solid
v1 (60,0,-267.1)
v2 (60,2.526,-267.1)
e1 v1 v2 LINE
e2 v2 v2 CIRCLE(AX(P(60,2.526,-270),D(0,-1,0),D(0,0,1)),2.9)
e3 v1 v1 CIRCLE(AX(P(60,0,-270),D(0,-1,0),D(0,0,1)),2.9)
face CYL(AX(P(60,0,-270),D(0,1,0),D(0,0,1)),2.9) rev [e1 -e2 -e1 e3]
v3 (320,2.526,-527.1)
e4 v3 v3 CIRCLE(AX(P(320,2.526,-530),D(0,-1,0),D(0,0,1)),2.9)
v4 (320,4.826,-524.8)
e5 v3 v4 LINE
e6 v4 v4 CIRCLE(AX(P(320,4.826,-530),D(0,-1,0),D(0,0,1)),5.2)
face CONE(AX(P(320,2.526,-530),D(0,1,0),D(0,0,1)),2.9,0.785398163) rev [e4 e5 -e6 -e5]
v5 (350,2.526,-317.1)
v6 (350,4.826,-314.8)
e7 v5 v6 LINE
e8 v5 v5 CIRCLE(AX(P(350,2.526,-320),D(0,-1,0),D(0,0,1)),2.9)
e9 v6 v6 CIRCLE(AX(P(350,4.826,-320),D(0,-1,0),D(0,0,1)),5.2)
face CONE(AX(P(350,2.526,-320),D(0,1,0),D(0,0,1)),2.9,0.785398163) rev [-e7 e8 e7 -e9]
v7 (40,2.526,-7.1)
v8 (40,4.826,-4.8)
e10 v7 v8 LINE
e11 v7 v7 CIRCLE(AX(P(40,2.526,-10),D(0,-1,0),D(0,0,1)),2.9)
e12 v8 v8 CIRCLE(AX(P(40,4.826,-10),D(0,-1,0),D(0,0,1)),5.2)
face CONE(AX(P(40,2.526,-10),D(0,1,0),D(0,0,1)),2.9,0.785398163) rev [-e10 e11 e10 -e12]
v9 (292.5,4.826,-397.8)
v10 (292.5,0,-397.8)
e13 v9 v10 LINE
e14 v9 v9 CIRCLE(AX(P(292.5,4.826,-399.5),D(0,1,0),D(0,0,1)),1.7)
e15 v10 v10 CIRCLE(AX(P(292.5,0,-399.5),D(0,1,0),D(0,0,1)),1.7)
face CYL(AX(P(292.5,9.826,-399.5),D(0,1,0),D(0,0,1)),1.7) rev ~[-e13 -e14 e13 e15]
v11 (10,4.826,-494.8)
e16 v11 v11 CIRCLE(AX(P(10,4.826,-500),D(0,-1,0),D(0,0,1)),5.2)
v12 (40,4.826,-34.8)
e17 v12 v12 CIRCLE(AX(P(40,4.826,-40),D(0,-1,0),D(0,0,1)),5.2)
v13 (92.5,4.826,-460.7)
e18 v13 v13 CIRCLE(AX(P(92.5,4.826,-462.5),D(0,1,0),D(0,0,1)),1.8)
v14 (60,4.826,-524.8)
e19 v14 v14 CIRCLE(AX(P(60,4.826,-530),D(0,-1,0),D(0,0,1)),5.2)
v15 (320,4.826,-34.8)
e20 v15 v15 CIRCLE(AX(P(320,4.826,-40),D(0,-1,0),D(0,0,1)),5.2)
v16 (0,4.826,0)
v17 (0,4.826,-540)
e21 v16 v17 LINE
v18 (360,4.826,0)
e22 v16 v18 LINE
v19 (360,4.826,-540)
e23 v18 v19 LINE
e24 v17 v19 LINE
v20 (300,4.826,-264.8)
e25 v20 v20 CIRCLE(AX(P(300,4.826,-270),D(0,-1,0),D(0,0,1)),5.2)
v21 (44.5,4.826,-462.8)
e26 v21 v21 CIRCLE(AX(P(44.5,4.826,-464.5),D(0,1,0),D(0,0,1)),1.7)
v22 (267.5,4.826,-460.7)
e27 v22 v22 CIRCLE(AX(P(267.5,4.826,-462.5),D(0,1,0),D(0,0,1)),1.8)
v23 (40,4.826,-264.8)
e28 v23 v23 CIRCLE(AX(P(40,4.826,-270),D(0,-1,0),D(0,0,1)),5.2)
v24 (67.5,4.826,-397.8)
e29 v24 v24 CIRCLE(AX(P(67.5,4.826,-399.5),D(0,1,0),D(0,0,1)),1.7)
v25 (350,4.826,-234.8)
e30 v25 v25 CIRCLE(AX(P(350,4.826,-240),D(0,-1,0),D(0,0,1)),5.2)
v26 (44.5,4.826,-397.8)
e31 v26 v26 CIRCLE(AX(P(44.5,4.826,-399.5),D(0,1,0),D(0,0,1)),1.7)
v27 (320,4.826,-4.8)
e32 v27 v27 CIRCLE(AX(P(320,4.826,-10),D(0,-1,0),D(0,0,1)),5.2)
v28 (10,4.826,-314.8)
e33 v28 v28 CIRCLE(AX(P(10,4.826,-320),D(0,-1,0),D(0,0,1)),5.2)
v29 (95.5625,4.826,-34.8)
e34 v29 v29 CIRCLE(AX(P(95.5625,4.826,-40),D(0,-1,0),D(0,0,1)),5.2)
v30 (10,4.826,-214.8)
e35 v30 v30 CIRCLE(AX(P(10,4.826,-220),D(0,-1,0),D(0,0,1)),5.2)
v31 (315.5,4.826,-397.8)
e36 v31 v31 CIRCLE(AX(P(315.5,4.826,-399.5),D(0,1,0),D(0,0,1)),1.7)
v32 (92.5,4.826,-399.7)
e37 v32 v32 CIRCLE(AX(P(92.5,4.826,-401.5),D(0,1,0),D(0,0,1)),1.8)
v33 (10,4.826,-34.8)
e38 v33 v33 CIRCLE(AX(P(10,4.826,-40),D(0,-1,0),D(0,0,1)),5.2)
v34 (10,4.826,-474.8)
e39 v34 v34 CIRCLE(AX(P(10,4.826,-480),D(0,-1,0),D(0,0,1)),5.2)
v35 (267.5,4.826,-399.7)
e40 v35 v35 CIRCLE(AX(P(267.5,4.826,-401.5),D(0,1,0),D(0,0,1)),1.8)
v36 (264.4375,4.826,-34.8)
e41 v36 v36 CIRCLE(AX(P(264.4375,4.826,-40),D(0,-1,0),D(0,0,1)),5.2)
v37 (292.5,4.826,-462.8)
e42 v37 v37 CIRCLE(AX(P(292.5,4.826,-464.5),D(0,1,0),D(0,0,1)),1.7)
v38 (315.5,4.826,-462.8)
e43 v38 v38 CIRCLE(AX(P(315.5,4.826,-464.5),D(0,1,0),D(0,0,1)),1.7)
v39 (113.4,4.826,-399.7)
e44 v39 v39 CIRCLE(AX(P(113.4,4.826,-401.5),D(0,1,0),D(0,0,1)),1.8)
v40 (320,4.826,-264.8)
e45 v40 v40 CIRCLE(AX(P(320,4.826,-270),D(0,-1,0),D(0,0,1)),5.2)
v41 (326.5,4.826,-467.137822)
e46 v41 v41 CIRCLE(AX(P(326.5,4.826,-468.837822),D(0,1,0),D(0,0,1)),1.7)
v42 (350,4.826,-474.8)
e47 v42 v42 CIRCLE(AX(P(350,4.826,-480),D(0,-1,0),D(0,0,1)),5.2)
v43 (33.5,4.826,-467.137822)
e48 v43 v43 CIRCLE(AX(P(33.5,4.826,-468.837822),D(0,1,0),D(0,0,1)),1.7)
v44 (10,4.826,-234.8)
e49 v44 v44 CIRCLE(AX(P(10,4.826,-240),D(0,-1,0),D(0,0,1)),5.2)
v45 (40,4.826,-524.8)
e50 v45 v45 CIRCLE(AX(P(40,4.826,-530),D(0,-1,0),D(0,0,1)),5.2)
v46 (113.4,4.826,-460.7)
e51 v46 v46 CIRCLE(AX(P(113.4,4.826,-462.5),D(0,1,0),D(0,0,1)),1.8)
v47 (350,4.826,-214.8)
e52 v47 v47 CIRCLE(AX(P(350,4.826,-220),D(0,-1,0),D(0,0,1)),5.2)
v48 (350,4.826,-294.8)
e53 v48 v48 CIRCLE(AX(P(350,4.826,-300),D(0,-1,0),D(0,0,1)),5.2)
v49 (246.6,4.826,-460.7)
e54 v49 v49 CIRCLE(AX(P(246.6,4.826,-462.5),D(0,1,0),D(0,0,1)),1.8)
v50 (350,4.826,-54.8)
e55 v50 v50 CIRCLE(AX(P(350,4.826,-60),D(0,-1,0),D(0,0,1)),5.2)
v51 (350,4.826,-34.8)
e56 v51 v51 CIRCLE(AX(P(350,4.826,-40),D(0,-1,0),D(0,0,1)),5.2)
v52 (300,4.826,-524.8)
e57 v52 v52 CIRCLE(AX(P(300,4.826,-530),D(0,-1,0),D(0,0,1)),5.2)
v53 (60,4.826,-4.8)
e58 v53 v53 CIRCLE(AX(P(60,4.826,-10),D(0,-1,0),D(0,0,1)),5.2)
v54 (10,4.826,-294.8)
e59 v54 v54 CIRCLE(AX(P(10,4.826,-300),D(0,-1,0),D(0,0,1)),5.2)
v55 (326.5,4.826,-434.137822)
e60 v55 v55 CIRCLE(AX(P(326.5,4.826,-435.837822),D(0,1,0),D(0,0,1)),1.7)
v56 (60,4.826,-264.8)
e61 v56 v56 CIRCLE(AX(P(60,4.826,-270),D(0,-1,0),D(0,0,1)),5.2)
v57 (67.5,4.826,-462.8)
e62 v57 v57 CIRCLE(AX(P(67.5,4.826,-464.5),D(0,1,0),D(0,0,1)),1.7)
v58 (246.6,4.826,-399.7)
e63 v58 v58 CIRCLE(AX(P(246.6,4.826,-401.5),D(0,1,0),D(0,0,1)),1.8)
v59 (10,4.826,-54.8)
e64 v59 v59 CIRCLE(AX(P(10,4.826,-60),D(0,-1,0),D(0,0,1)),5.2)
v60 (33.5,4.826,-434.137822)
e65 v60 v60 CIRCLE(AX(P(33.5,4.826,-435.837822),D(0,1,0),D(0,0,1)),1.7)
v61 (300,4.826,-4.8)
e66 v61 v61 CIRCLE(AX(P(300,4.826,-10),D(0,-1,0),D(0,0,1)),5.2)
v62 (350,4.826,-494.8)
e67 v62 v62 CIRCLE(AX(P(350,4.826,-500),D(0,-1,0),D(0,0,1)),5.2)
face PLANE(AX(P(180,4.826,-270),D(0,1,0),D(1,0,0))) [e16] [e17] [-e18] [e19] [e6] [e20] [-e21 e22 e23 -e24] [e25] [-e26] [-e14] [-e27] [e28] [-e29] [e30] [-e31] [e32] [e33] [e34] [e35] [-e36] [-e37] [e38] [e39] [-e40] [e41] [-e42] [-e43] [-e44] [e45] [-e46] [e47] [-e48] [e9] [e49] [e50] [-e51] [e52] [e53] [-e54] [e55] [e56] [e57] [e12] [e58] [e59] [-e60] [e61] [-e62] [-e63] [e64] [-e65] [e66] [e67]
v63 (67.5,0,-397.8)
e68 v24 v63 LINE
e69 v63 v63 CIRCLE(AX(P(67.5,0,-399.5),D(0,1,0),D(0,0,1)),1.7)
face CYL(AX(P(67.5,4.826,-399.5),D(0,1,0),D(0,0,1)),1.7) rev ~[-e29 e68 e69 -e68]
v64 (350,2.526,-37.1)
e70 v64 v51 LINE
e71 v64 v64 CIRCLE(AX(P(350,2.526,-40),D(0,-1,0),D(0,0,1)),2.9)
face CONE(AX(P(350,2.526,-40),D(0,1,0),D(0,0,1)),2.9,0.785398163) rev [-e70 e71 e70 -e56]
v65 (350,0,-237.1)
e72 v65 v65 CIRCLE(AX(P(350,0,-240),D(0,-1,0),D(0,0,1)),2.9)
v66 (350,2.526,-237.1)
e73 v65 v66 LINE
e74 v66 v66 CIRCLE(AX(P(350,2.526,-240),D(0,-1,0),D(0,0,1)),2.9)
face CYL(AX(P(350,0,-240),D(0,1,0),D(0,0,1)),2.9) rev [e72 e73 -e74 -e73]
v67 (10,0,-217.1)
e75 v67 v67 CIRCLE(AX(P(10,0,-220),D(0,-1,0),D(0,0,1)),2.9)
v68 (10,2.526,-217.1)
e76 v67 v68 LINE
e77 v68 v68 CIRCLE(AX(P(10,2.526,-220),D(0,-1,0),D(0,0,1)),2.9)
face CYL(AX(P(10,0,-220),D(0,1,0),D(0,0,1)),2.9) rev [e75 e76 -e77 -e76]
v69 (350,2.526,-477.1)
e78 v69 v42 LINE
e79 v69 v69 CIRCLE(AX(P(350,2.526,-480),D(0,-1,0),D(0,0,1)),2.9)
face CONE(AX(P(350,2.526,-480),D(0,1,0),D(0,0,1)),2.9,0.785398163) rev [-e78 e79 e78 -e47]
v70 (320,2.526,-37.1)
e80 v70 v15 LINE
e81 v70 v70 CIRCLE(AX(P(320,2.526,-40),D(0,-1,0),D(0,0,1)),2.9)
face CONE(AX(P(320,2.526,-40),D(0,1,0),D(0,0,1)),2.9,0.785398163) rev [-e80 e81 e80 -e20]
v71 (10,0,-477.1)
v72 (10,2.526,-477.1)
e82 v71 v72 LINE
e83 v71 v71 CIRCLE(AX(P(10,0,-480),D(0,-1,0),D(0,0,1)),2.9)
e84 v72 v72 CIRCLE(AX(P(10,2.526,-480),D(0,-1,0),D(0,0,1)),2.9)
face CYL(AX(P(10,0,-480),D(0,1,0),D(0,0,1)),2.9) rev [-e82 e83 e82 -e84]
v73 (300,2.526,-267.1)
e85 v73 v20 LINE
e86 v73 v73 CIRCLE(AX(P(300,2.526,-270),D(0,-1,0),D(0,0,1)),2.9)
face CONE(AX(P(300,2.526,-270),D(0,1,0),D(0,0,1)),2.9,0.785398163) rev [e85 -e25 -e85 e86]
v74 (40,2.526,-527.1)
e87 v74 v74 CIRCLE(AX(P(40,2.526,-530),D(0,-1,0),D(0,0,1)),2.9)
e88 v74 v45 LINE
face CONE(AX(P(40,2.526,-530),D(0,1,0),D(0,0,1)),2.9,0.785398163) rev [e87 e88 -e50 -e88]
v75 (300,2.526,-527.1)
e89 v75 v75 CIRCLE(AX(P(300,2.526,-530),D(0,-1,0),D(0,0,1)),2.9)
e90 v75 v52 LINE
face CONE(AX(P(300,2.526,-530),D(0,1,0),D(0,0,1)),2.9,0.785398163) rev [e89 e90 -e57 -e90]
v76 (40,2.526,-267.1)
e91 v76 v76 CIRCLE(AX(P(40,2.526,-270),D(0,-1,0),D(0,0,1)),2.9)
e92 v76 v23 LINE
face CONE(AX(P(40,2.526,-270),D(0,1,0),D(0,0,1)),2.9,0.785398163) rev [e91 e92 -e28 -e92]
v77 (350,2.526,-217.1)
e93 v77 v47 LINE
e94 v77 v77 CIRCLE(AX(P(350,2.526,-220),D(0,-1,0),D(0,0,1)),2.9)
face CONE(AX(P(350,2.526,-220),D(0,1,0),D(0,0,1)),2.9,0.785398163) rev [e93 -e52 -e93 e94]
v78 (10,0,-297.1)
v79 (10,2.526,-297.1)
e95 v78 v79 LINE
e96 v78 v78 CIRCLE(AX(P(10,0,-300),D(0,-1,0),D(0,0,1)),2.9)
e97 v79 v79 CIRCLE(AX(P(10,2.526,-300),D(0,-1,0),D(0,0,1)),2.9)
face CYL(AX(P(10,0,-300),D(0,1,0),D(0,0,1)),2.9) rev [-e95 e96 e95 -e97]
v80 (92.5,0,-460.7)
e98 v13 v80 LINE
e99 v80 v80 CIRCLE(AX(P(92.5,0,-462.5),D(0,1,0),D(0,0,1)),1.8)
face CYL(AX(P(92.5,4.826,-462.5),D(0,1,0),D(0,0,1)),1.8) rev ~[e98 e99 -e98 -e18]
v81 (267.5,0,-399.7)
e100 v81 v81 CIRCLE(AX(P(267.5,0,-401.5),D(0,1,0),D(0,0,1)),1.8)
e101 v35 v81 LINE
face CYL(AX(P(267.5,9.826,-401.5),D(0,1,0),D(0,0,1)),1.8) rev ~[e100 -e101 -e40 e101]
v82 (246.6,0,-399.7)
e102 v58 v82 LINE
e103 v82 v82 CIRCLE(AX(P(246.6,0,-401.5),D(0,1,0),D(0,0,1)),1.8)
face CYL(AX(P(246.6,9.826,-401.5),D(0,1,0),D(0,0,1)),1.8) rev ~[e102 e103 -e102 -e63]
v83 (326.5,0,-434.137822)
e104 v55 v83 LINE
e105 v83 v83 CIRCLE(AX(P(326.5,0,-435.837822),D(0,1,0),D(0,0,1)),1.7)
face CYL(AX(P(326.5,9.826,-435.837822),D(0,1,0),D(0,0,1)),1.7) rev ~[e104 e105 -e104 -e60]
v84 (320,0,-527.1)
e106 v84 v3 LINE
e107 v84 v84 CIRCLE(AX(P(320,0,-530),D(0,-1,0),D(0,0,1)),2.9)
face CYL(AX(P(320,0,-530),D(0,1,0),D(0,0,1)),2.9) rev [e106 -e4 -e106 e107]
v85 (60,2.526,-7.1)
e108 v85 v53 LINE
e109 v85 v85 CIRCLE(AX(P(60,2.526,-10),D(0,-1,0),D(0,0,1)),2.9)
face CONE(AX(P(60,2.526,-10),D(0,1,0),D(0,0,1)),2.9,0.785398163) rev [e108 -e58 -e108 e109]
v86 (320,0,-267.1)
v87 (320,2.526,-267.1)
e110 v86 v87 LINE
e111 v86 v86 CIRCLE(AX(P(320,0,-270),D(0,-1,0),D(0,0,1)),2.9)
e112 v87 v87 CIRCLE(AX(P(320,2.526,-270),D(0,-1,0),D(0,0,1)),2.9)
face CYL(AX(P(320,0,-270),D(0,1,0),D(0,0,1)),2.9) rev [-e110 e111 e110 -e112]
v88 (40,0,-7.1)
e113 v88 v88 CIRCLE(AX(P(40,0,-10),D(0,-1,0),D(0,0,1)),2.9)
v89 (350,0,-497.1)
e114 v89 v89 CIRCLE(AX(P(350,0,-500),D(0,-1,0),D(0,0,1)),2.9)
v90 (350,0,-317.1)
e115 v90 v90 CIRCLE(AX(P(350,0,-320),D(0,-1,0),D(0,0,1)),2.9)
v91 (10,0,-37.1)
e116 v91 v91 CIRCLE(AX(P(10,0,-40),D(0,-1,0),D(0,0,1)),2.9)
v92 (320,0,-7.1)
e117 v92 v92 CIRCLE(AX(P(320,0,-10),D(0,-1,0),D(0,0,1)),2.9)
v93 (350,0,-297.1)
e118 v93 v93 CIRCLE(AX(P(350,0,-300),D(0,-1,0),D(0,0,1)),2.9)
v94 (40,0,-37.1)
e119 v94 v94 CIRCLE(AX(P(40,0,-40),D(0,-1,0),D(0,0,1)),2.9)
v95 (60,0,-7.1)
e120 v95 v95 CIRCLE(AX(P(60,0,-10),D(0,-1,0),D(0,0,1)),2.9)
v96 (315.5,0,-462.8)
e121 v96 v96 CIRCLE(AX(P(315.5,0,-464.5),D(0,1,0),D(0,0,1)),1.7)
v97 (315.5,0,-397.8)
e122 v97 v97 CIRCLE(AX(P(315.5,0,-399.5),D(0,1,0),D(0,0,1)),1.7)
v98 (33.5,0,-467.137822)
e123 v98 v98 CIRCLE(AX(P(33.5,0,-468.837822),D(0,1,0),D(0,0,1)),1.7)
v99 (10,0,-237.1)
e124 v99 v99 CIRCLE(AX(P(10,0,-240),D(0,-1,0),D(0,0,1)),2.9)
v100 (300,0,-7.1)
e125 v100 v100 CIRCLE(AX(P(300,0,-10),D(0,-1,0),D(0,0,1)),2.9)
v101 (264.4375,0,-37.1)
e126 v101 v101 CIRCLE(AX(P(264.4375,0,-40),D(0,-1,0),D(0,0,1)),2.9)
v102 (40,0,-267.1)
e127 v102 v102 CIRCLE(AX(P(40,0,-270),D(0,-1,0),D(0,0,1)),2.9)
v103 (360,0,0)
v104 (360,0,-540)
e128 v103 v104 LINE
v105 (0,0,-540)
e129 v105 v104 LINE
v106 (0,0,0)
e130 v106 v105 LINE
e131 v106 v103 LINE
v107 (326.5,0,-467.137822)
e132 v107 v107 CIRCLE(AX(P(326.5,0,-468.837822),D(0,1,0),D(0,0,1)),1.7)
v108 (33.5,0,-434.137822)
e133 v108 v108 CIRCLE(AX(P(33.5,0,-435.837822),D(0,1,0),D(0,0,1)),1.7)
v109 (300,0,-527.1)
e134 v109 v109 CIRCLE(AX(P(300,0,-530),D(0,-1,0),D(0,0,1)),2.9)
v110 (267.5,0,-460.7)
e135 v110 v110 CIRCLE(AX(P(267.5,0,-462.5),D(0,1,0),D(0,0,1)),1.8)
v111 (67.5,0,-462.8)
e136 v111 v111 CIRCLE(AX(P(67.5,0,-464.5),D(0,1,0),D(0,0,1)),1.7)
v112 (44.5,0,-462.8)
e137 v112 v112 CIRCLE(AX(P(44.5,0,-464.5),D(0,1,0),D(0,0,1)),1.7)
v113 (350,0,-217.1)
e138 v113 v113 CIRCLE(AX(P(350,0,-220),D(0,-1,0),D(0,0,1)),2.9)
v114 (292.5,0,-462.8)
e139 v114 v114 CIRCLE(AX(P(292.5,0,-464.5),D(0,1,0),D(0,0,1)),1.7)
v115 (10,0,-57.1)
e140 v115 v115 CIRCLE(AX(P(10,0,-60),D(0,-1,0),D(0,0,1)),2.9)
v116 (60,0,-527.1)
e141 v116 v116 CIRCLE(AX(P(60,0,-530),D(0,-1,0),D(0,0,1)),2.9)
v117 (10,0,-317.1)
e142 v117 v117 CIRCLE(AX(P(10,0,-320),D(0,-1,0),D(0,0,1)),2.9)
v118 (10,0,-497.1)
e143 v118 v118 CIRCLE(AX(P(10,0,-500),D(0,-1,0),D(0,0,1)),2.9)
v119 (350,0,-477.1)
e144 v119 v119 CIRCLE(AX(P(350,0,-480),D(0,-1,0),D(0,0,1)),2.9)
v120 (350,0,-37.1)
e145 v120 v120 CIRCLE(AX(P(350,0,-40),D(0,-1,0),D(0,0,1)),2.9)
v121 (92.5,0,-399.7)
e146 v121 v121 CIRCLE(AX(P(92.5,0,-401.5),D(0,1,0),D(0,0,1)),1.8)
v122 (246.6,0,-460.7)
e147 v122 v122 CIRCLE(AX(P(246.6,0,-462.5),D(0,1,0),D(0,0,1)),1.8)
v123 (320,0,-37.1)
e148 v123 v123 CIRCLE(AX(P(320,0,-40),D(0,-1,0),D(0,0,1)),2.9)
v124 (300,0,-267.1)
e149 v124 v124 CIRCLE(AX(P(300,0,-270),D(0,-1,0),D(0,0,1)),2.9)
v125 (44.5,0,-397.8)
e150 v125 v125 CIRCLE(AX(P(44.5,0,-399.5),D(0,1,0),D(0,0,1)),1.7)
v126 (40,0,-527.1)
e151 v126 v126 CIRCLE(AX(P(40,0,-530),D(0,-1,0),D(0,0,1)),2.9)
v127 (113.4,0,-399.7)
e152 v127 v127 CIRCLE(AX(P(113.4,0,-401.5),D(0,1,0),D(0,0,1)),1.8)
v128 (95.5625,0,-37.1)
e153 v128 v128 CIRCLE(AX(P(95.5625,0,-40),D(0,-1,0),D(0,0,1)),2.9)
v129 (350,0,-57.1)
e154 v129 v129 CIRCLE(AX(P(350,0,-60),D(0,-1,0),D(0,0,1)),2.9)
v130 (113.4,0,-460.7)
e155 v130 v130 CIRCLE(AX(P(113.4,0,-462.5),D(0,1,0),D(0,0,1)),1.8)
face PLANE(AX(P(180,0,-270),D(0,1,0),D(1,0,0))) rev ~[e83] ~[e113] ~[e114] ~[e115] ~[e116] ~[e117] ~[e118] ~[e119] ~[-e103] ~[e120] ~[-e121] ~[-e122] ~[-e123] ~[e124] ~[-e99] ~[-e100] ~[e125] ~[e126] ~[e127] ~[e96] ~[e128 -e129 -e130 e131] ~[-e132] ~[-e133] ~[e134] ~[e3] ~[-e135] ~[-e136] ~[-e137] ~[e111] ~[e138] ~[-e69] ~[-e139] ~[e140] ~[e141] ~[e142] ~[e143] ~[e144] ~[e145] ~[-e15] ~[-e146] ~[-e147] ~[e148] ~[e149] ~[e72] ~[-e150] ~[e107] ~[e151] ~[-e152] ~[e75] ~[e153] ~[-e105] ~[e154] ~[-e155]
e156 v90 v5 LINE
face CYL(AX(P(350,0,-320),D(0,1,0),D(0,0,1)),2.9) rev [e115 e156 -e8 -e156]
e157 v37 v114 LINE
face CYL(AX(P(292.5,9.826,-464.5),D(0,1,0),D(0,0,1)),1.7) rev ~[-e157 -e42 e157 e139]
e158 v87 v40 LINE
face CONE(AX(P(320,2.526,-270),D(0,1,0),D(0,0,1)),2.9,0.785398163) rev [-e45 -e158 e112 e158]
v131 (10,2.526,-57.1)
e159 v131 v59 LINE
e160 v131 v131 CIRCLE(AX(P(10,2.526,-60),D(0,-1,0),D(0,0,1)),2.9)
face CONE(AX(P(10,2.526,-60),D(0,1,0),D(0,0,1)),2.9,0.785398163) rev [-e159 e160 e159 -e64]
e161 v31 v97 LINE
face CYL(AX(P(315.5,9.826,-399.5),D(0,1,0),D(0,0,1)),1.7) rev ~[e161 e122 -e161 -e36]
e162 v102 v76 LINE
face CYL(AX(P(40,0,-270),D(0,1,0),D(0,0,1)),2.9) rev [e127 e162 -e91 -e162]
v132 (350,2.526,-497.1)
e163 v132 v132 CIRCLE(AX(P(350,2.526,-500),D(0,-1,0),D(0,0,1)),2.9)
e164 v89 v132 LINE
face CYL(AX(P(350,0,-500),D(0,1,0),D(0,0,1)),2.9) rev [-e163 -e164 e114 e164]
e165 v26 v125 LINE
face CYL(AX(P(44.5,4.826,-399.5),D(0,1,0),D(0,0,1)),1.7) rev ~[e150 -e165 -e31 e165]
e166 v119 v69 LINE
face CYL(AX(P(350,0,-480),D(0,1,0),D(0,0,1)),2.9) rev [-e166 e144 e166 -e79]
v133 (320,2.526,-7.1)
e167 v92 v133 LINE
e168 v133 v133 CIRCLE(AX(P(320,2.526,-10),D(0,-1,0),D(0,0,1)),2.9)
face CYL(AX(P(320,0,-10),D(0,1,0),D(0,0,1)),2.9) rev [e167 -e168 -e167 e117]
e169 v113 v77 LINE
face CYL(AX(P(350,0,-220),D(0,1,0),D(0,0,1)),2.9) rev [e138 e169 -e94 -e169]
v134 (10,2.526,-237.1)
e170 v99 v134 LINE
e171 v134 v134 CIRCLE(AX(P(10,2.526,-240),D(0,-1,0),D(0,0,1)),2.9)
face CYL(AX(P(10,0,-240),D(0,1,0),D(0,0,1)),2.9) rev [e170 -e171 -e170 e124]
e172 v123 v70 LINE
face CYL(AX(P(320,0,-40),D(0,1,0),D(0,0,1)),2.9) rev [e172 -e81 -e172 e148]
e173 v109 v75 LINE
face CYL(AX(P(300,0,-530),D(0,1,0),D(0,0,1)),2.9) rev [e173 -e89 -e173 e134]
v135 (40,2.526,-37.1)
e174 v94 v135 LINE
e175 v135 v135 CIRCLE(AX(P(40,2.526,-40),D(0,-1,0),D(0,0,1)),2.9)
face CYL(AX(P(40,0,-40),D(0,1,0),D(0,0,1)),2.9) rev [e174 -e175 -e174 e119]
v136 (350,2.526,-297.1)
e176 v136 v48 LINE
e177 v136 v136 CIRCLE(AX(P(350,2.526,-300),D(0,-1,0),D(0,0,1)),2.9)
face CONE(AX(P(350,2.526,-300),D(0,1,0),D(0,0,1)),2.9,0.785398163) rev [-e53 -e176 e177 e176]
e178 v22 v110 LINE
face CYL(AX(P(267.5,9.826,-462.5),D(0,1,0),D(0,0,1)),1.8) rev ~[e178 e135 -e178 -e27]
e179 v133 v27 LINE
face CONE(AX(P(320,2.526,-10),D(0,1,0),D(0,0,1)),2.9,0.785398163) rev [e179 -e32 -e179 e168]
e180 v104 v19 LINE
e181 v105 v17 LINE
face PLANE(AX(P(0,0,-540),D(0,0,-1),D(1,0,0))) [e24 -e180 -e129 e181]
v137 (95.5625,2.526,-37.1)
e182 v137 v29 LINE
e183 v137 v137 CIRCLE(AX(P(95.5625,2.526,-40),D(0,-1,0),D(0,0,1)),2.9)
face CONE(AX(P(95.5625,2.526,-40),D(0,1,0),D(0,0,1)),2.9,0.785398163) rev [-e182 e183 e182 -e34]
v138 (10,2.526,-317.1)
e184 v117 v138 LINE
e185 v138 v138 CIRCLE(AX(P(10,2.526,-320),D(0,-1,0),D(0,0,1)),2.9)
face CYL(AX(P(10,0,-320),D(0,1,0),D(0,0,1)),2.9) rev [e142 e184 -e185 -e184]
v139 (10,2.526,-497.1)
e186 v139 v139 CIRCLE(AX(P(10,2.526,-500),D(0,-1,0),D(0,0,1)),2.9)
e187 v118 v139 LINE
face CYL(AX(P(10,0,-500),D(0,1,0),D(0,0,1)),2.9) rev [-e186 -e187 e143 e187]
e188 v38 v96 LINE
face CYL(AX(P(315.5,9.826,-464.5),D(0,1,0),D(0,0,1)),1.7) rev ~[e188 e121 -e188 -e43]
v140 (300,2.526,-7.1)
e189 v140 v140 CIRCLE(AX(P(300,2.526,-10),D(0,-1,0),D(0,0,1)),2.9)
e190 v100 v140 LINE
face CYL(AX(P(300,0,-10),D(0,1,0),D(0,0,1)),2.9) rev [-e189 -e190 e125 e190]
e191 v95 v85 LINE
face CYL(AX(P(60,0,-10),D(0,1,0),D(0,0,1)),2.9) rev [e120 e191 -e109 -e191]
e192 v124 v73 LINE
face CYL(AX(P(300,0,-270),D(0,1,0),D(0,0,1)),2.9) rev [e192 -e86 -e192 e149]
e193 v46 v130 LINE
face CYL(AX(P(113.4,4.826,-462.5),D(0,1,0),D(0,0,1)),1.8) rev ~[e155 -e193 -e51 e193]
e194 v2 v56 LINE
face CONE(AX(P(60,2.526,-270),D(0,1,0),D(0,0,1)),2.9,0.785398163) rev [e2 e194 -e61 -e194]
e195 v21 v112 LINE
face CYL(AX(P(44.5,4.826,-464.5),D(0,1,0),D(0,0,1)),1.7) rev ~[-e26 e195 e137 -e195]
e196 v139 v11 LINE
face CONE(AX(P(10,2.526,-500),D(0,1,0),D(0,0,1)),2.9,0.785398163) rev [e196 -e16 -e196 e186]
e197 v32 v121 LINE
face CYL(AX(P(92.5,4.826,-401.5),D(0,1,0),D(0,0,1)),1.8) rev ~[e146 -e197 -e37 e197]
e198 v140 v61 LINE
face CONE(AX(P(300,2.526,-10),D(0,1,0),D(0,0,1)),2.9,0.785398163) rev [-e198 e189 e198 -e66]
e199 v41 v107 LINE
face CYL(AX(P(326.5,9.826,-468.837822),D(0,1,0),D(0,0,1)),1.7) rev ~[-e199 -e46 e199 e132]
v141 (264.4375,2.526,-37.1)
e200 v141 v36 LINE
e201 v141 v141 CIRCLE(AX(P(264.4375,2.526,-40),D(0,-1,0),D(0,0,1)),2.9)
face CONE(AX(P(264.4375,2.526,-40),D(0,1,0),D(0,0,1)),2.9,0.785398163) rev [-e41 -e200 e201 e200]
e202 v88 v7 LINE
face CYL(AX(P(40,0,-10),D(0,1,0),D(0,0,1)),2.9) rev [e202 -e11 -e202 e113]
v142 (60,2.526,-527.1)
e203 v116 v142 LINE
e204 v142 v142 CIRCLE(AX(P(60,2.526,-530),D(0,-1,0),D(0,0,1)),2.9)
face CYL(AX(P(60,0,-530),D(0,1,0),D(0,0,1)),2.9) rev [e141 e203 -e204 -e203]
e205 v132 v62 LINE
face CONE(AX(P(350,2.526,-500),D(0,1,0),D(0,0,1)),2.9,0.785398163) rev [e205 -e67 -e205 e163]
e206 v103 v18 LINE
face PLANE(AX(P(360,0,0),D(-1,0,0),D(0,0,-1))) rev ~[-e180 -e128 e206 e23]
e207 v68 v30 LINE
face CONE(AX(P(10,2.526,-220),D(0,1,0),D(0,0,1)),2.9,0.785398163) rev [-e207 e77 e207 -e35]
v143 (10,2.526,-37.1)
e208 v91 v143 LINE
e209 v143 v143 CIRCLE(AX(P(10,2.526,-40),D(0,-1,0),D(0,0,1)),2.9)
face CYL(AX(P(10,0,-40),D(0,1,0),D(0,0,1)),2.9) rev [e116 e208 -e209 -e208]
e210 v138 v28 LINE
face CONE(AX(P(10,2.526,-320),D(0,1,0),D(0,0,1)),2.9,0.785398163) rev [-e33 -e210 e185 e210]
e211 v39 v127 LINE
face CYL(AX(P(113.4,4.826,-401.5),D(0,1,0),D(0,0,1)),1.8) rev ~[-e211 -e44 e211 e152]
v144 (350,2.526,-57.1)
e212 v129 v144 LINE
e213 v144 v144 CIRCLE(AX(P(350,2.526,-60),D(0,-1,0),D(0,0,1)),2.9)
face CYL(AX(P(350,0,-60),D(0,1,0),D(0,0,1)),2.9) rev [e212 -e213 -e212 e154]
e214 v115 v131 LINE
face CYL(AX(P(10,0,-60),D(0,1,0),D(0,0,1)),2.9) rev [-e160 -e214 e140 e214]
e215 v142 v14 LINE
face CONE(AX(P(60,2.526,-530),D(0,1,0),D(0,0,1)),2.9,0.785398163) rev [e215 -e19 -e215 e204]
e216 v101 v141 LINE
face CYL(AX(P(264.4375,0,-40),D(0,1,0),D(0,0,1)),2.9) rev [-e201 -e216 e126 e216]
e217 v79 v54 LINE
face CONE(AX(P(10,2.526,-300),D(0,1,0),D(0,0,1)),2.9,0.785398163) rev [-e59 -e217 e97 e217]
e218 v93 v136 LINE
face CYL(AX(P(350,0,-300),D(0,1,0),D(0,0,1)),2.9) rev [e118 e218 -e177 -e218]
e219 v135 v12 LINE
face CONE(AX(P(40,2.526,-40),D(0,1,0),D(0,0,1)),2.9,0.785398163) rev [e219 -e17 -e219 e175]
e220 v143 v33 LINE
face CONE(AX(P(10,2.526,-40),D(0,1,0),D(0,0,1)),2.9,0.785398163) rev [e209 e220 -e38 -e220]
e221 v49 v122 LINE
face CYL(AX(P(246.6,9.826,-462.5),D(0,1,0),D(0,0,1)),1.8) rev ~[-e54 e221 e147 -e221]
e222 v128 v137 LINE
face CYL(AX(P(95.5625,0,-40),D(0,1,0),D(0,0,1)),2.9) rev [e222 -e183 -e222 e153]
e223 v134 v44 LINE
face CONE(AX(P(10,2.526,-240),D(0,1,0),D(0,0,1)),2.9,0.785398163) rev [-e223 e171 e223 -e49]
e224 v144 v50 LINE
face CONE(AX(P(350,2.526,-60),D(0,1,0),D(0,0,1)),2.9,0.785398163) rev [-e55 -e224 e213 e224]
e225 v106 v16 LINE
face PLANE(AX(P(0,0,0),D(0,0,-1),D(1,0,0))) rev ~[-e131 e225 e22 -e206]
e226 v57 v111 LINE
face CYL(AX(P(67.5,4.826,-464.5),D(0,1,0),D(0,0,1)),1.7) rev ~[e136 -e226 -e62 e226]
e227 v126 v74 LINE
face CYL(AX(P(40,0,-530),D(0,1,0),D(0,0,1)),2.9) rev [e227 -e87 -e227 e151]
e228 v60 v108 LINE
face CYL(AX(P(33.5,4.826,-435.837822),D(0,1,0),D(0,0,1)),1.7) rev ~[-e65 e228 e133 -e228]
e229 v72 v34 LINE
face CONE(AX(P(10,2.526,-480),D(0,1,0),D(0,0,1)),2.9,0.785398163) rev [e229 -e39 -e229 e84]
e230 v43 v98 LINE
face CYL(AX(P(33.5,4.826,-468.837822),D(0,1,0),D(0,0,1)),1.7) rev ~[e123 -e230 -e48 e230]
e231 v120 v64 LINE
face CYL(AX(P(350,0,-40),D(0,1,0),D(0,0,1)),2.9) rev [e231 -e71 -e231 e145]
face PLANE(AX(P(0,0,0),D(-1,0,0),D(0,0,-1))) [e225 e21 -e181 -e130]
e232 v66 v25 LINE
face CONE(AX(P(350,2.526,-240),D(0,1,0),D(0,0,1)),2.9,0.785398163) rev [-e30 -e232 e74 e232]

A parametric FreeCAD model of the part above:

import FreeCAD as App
import Part
import Sketcher

V = App.Vector
Q = App.Units.Quantity

doc = App.newDocument("Part")
body = doc.addObject("PartDesign::Body", "Body")

sketch1 = body.newObject("Sketcher::SketchObject", "Sketch")
sketch1.AttachmentSupport = (doc.getObject("XZ_Plane"), [""])
sketch1.MapMode = "FlatFace"
sketch1.addGeometry([
    Part.LineSegment(V(0, -540, 0), V(0, 0, 0)),
    Part.LineSegment(V(0, 0, 0), V(360, 0, 0)),
    Part.LineSegment(V(360, 0, 0), V(360, -540, 0)),
    Part.LineSegment(V(360, -540, 0), V(0, -540, 0)),
], False)
sketch1.addConstraint([
    Sketcher.Constraint("Coincident", 0, 2, 1, 1),
    Sketcher.Constraint("Coincident", 1, 2, 2, 1),
    Sketcher.Constraint("Coincident", 2, 2, 3, 1),
    Sketcher.Constraint("Coincident", 3, 2, 0, 1),
    Sketcher.Constraint("Vertical", 0),
    Sketcher.Constraint("Horizontal", 1),
    Sketcher.Constraint("Vertical", 2),
    Sketcher.Constraint("Horizontal", 3),
    Sketcher.Constraint("Coincident", 0, 2, -1, 1),
    Sketcher.Constraint("DistanceX", 1, 1, 1, 2, 360.0),
    Sketcher.Constraint("DistanceY", 0, 1, 0, 2, 540.0),
])
pad1 = body.newObject("PartDesign::Pad", "Pad")
pad1.Profile = sketch1
pad1.Length = 4.826
pad1.Reversed = True

sketch2 = body.newObject("Sketcher::SketchObject", "Sketch001")
sketch2.AttachmentSupport = (doc.getObject("YZ_Plane"), [""])
sketch2.MapMode = "FlatFace"
sketch2.AttachmentOffset = App.Placement(V(0, 0, 40), App.Rotation())
sketch2.addGeometry([
    Part.LineSegment(V(0, -40, 0), V(4.8, -40, 0)),
    Part.LineSegment(V(4.8, -40, 0), V(4.8, -34.8, 0)),
    Part.LineSegment(V(4.8, -34.8, 0), V(2.5, -37.1, 0)),
    Part.LineSegment(V(2.5, -37.1, 0), V(0, -37.1, 0)),
    Part.LineSegment(V(0, -37.1, 0), V(0, -40, 0)),
], False)
sketch2.addGeometry(Part.LineSegment(V(4.8, -40, 0), V(0, -40, 0)), True)
sketch2.addConstraint([
    Sketcher.Constraint("Coincident", 0, 2, 1, 1),
    Sketcher.Constraint("Coincident", 1, 2, 2, 1),
    Sketcher.Constraint("Coincident", 2, 2, 3, 1),
    Sketcher.Constraint("Coincident", 3, 2, 4, 1),
    Sketcher.Constraint("Coincident", 4, 2, 0, 1),
    Sketcher.Constraint("Horizontal", 0),
    Sketcher.Constraint("Vertical", 1),
    Sketcher.Constraint("Horizontal", 3),
    Sketcher.Constraint("Vertical", 4),
    Sketcher.Constraint("Horizontal", 5),
    Sketcher.Constraint("Coincident", 5, 1, 0, 2),
    Sketcher.Constraint("PointOnObject", 3, 2, -2),
    Sketcher.Constraint("PointOnObject", 5, 2, -2),
    Sketcher.Constraint("Angle", 2, Q("-135 deg")),
    Sketcher.Constraint("DistanceY", 1, 1, 1, 2, 5.2),
    Sketcher.Constraint("DistanceY", 4, 2, 4, 1, 2.9),
    Sketcher.Constraint("DistanceY", 0, 2, -1, 1, 40.0),
    Sketcher.Constraint("DistanceX", 0, 1, 0, 2, 4.826),
])
groove = body.newObject("PartDesign::Groove", "Groove")
groove.Profile = sketch2
groove.ReferenceAxis = (sketch2, ["Axis0"])
groove.Angle = 360
doc.recompute()

linearpattern = body.newObject("PartDesign::LinearPattern", "LinearPattern")
linearpattern.Originals = [groove]
linearpattern.Direction = (doc.getObject("X_Axis"), [""])
linearpattern.Mode = "offset"
linearpattern.Offset = 55.5625
linearpattern.Occurrences = 2
body.Tip = linearpattern
doc.recompute()

linearpattern2 = body.newObject("PartDesign::LinearPattern", "LinearPattern001")
linearpattern2.Originals = [groove]
linearpattern2.Direction = (doc.getObject("X_Axis"), [""])
linearpattern2.Mode = "offset"
linearpattern2.Offset = 224.4375
linearpattern2.Occurrences = 2
body.Tip = linearpattern2
doc.recompute()

linearpattern3 = body.newObject("PartDesign::LinearPattern", "LinearPattern002")
linearpattern3.Originals = [groove]
linearpattern3.Direction = (doc.getObject("X_Axis"), [""])
linearpattern3.Mode = "offset"
linearpattern3.Offset = 280
linearpattern3.Occurrences = 2
body.Tip = linearpattern3

sketch3 = body.newObject("Sketcher::SketchObject", "Sketch002")
sketch3.AttachmentSupport = (doc.getObject("YZ_Plane"), [""])
sketch3.MapMode = "FlatFace"
sketch3.AttachmentOffset = App.Placement(V(0, 0, 40), App.Rotation())
sketch3.addGeometry([
    Part.LineSegment(V(0, -10, 0), V(4.8, -10, 0)),
    Part.LineSegment(V(4.8, -10, 0), V(4.8, -4.8, 0)),
    Part.LineSegment(V(4.8, -4.8, 0), V(2.5, -7.1, 0)),
    Part.LineSegment(V(2.5, -7.1, 0), V(0, -7.1, 0)),
    Part.LineSegment(V(0, -7.1, 0), V(0, -10, 0)),
], False)
sketch3.addGeometry(Part.LineSegment(V(4.8, -10, 0), V(0, -10, 0)), True)
sketch3.addConstraint([
    Sketcher.Constraint("Coincident", 0, 2, 1, 1),
    Sketcher.Constraint("Coincident", 1, 2, 2, 1),
    Sketcher.Constraint("Coincident", 2, 2, 3, 1),
    Sketcher.Constraint("Coincident", 3, 2, 4, 1),
    Sketcher.Constraint("Coincident", 4, 2, 0, 1),
    Sketcher.Constraint("Horizontal", 0),
    Sketcher.Constraint("Vertical", 1),
    Sketcher.Constraint("Horizontal", 3),
    Sketcher.Constraint("Vertical", 4),
    Sketcher.Constraint("Horizontal", 5),
    Sketcher.Constraint("Coincident", 5, 1, 0, 2),
    Sketcher.Constraint("PointOnObject", 3, 2, -2),
    Sketcher.Constraint("PointOnObject", 5, 2, -2),
    Sketcher.Constraint("Angle", 2, Q("-135 deg")),
    Sketcher.Constraint("DistanceY", 1, 1, 1, 2, 5.2),
    Sketcher.Constraint("DistanceY", 4, 2, 4, 1, 2.9),
    Sketcher.Constraint("DistanceY", 0, 2, -1, 1, 10.0),
    Sketcher.Constraint("DistanceX", 0, 1, 0, 2, 4.826),
])
groove2 = body.newObject("PartDesign::Groove", "Groove001")
groove2.Profile = sketch3
groove2.ReferenceAxis = (sketch3, ["Axis0"])
groove2.Angle = 360
doc.recompute()

datumline = body.newObject("PartDesign::Line", "DatumLine")
datumline.Placement = App.Placement(V(0, 0, 0), App.Rotation(V(0, 0, 1), V(-0.707106781, 0, -0.707106781)))
linearpattern4 = body.newObject("PartDesign::LinearPattern", "LinearPattern003")
linearpattern4.Originals = [groove2]
linearpattern4.Direction = (datumline, [""])
linearpattern4.Mode = "offset"
linearpattern4.Offset = 42.426407
linearpattern4.Occurrences = 2
body.Tip = linearpattern4
doc.recompute()

linearpattern5 = body.newObject("PartDesign::LinearPattern", "LinearPattern004")
linearpattern5.Originals = [groove2]
linearpattern5.Direction = (doc.getObject("X_Axis"), [""])
linearpattern5.Mode = "offset"
linearpattern5.Offset = 280
linearpattern5.Occurrences = 2
body.Tip = linearpattern5
doc.recompute()

datumline2 = body.newObject("PartDesign::Line", "DatumLine001")
datumline2.Placement = App.Placement(V(0, 0, 0), App.Rotation(V(0, 0, 1), V(0.995350014, 0, -0.096324195)))
linearpattern6 = body.newObject("PartDesign::LinearPattern", "LinearPattern005")
linearpattern6.Originals = [groove2]
linearpattern6.Direction = (datumline2, [""])
linearpattern6.Mode = "offset"
linearpattern6.Offset = 311.44823
linearpattern6.Occurrences = 2
body.Tip = linearpattern6
doc.recompute()

datumline3 = body.newObject("PartDesign::Line", "DatumLine002")
datumline3.Placement = App.Placement(V(0, 0, 0), App.Rotation(V(0, 0, 1), V(-0.129339184, 0, -0.991600411)))
linearpattern7 = body.newObject("PartDesign::LinearPattern", "LinearPattern006")
linearpattern7.Originals = [groove2]
linearpattern7.Direction = (datumline3, [""])
linearpattern7.Mode = "offset"
linearpattern7.Offset = 231.94827
linearpattern7.Occurrences = 2
body.Tip = linearpattern7
doc.recompute()

linearpattern8 = body.newObject("PartDesign::LinearPattern", "LinearPattern007")
linearpattern8.Originals = [groove2]
linearpattern8.Direction = (doc.getObject("Z_Axis"), [""])
linearpattern8.Mode = "offset"
linearpattern8.Offset = 260
linearpattern8.Occurrences = 2
linearpattern8.Reversed = True
body.Tip = linearpattern8
doc.recompute()

datumline4 = body.newObject("PartDesign::Line", "DatumLine003")
datumline4.Placement = App.Placement(V(0, 0, 0), App.Rotation(V(0, 0, 1), V(-0.102899151, 0, -0.994691794)))
linearpattern9 = body.newObject("PartDesign::LinearPattern", "LinearPattern008")
linearpattern9.Originals = [groove2]
linearpattern9.Direction = (datumline4, [""])
linearpattern9.Mode = "offset"
linearpattern9.Offset = 291.547595
linearpattern9.Occurrences = 2
body.Tip = linearpattern9
doc.recompute()

datumline5 = body.newObject("PartDesign::Line", "DatumLine004")
datumline5.Placement = App.Placement(V(0, 0, 0), App.Rotation(V(0, 0, 1), V(0.803098028, 0, -0.595846924)))
linearpattern10 = body.newObject("PartDesign::LinearPattern", "LinearPattern009")
linearpattern10.Originals = [groove2]
linearpattern10.Direction = (datumline5, [""])
linearpattern10.Mode = "offset"
linearpattern10.Offset = 386.005181
linearpattern10.Occurrences = 2
body.Tip = linearpattern10
doc.recompute()

datumline6 = body.newObject("PartDesign::Line", "DatumLine005")
datumline6.Placement = App.Placement(V(0, 0, 0), App.Rotation(V(0, 0, 1), V(0.732793492, 0, -0.680451099)))
linearpattern11 = body.newObject("PartDesign::LinearPattern", "LinearPattern010")
linearpattern11.Originals = [groove2]
linearpattern11.Direction = (datumline6, [""])
linearpattern11.Mode = "offset"
linearpattern11.Offset = 382.099463
linearpattern11.Occurrences = 2
body.Tip = linearpattern11
doc.recompute()

datumline7 = body.newObject("PartDesign::Line", "DatumLine006")
datumline7.Placement = App.Placement(V(0, 0, 0), App.Rotation(V(0, 0, 1), V(0.730271414, 0, -0.683157129)))
linearpattern12 = body.newObject("PartDesign::LinearPattern", "LinearPattern011")
linearpattern12.Originals = [groove2]
linearpattern12.Direction = (datumline7, [""])
linearpattern12.Mode = "offset"
linearpattern12.Offset = 424.499706
linearpattern12.Occurrences = 2
body.Tip = linearpattern12
doc.recompute()

datumline8 = body.newObject("PartDesign::Line", "DatumLine007")
datumline8.Placement = App.Placement(V(0, 0, 0), App.Rotation(V(0, 0, 1), V(-0.061110063, 0, -0.998131034)))
linearpattern13 = body.newObject("PartDesign::LinearPattern", "LinearPattern012")
linearpattern13.Originals = [groove2]
linearpattern13.Direction = (datumline8, [""])
linearpattern13.Mode = "offset"
linearpattern13.Offset = 490.917508
linearpattern13.Occurrences = 2
body.Tip = linearpattern13
doc.recompute()

linearpattern14 = body.newObject("PartDesign::LinearPattern", "LinearPattern013")
linearpattern14.Originals = [groove2]
linearpattern14.Direction = (doc.getObject("Z_Axis"), [""])
linearpattern14.Mode = "offset"
linearpattern14.Offset = 520
linearpattern14.Occurrences = 2
linearpattern14.Reversed = True
body.Tip = linearpattern14
doc.recompute()

datumline9 = body.newObject("PartDesign::Line", "DatumLine008")
datumline9.Placement = App.Placement(V(0, 0, 0), App.Rotation(V(0, 0, 1), V(0.474099823, 0, -0.8804711)))
linearpattern15 = body.newObject("PartDesign::LinearPattern", "LinearPattern014")
linearpattern15.Originals = [groove2]
linearpattern15.Direction = (datumline9, [""])
linearpattern15.Mode = "offset"
linearpattern15.Offset = 590.592922
linearpattern15.Occurrences = 2
body.Tip = linearpattern15
doc.recompute()

datumline10 = body.newObject("PartDesign::Line", "DatumLine009")
datumline10.Placement = App.Placement(V(0, 0, 0), App.Rotation(V(0, 0, 1), V(0.534641713, 0, -0.845078836)))
linearpattern16 = body.newObject("PartDesign::LinearPattern", "LinearPattern015")
linearpattern16.Originals = [groove2]
linearpattern16.Direction = (datumline10, [""])
linearpattern16.Mode = "offset"
linearpattern16.Offset = 579.827561
linearpattern16.Occurrences = 2
body.Tip = linearpattern16
doc.recompute()

datumline11 = body.newObject("PartDesign::Line", "DatumLine010")
datumline11.Placement = App.Placement(V(0, 0, 0), App.Rotation(V(0, 0, 1), V(-0.063700154, 0, -0.997969083)))
linearpattern17 = body.newObject("PartDesign::LinearPattern", "LinearPattern016")
linearpattern17.Originals = [groove2]
linearpattern17.Direction = (datumline11, [""])
linearpattern17.Mode = "offset"
linearpattern17.Offset = 470.956474
linearpattern17.Occurrences = 2
body.Tip = linearpattern17
doc.recompute()

datumline12 = body.newObject("PartDesign::Line", "DatumLine011")
datumline12.Placement = App.Placement(V(0, 0, 0), App.Rotation(V(0, 0, 1), V(0.038433122, 0, -0.999261175)))
linearpattern18 = body.newObject("PartDesign::LinearPattern", "LinearPattern017")
linearpattern18.Originals = [groove2]
linearpattern18.Direction = (datumline12, [""])
linearpattern18.Mode = "offset"
linearpattern18.Offset = 520.384473
linearpattern18.Occurrences = 2
body.Tip = linearpattern18
doc.recompute()

datumline13 = body.newObject("PartDesign::Line", "DatumLine012")
datumline13.Placement = App.Placement(V(0, 0, 0), App.Rotation(V(0, 0, 1), V(0.447213595, 0, -0.894427191)))
linearpattern19 = body.newObject("PartDesign::LinearPattern", "LinearPattern018")
linearpattern19.Originals = [groove2]
linearpattern19.Direction = (datumline13, [""])
linearpattern19.Mode = "offset"
linearpattern19.Offset = 581.377674
linearpattern19.Occurrences = 2
body.Tip = linearpattern19
doc.recompute()

datumline14 = body.newObject("PartDesign::Line", "DatumLine013")
datumline14.Placement = App.Placement(V(0, 0, 0), App.Rotation(V(0, 0, 1), V(0.550594746, 0, -0.834772679)))
linearpattern20 = body.newObject("PartDesign::LinearPattern", "LinearPattern019")
linearpattern20.Originals = [groove2]
linearpattern20.Direction = (datumline14, [""])
linearpattern20.Mode = "offset"
linearpattern20.Offset = 563.02753
linearpattern20.Occurrences = 2
body.Tip = linearpattern20
doc.recompute()

datumline15 = body.newObject("PartDesign::Line", "DatumLine014")
datumline15.Placement = App.Placement(V(0, 0, 0), App.Rotation(V(0, 0, 1), V(0.707106781, 0, -0.707106781)))
linearpattern21 = body.newObject("PartDesign::LinearPattern", "LinearPattern020")
linearpattern21.Originals = [groove2]
linearpattern21.Direction = (datumline15, [""])
linearpattern21.Mode = "offset"
linearpattern21.Offset = 438.406204
linearpattern21.Occurrences = 2
body.Tip = linearpattern21
doc.recompute()

datumline16 = body.newObject("PartDesign::Line", "DatumLine015")
datumline16.Placement = App.Placement(V(0, 0, 0), App.Rotation(V(0, 0, 1), V(0.707106781, 0, -0.707106781)))
linearpattern22 = body.newObject("PartDesign::LinearPattern", "LinearPattern021")
linearpattern22.Originals = [groove2]
linearpattern22.Direction = (datumline16, [""])
linearpattern22.Mode = "offset"
linearpattern22.Offset = 367.695526
linearpattern22.Occurrences = 2
body.Tip = linearpattern22
doc.recompute()

datumline17 = body.newObject("PartDesign::Line", "DatumLine016")
datumline17.Placement = App.Placement(V(0, 0, 0), App.Rotation(V(0, 0, 1), V(0.82791869, 0, -0.560848145)))
linearpattern23 = body.newObject("PartDesign::LinearPattern", "LinearPattern022")
linearpattern23.Originals = [groove2]
linearpattern23.Direction = (datumline17, [""])
linearpattern23.Mode = "offset"
linearpattern23.Offset = 374.432905
linearpattern23.Occurrences = 2
body.Tip = linearpattern23
doc.recompute()

datumline18 = body.newObject("PartDesign::Line", "DatumLine017")
datumline18.Placement = App.Placement(V(0, 0, 0), App.Rotation(V(0, 0, 1), V(-0.141421356, 0, -0.989949494)))
linearpattern24 = body.newObject("PartDesign::LinearPattern", "LinearPattern023")
linearpattern24.Originals = [groove2]
linearpattern24.Direction = (datumline18, [""])
linearpattern24.Mode = "offset"
linearpattern24.Offset = 212.132034
linearpattern24.Occurrences = 2
body.Tip = linearpattern24
doc.recompute()

datumline19 = body.newObject("PartDesign::Line", "DatumLine018")
datumline19.Placement = App.Placement(V(0, 0, 0), App.Rotation(V(0, 0, 1), V(0.076696499, 0, -0.997054486)))
linearpattern25 = body.newObject("PartDesign::LinearPattern", "LinearPattern024")
linearpattern25.Originals = [groove2]
linearpattern25.Direction = (datumline19, [""])
linearpattern25.Mode = "offset"
linearpattern25.Offset = 260.768096
linearpattern25.Occurrences = 2
body.Tip = linearpattern25
doc.recompute()

datumline20 = body.newObject("PartDesign::Line", "DatumLine019")
datumline20.Placement = App.Placement(V(0, 0, 0), App.Rotation(V(0, 0, 1), V(-0.096324195, 0, -0.995350014)))
linearpattern26 = body.newObject("PartDesign::LinearPattern", "LinearPattern025")
linearpattern26.Originals = [groove2]
linearpattern26.Direction = (datumline20, [""])
linearpattern26.Mode = "offset"
linearpattern26.Offset = 311.44823
linearpattern26.Occurrences = 2
body.Tip = linearpattern26
doc.recompute()

datumline21 = body.newObject("PartDesign::Line", "DatumLine020")
datumline21.Placement = App.Placement(V(0, 0, 0), App.Rotation(V(0, 0, 1), V(-0.514495755, 0, -0.857492926)))
linearpattern27 = body.newObject("PartDesign::LinearPattern", "LinearPattern026")
linearpattern27.Originals = [groove2]
linearpattern27.Direction = (datumline21, [""])
linearpattern27.Mode = "offset"
linearpattern27.Offset = 58.309519
linearpattern27.Occurrences = 2
body.Tip = linearpattern27
doc.recompute()

linearpattern28 = body.newObject("PartDesign::LinearPattern", "LinearPattern027")
linearpattern28.Originals = [groove2]
linearpattern28.Direction = (doc.getObject("X_Axis"), [""])
linearpattern28.Mode = "offset"
linearpattern28.Offset = 20
linearpattern28.Occurrences = 2
body.Tip = linearpattern28
doc.recompute()

linearpattern29 = body.newObject("PartDesign::LinearPattern", "LinearPattern028")
linearpattern29.Originals = [groove2]
linearpattern29.Direction = (doc.getObject("X_Axis"), [""])
linearpattern29.Mode = "offset"
linearpattern29.Offset = 260
linearpattern29.Occurrences = 2
body.Tip = linearpattern29
doc.recompute()

datumline22 = body.newObject("PartDesign::Line", "DatumLine021")
datumline22.Placement = App.Placement(V(0, 0, 0), App.Rotation(V(0, 0, 1), V(0.987241121, 0, -0.159232439)))
linearpattern30 = body.newObject("PartDesign::LinearPattern", "LinearPattern029")
linearpattern30.Originals = [groove2]
linearpattern30.Direction = (datumline22, [""])
linearpattern30.Mode = "offset"
linearpattern30.Offset = 314.006369
linearpattern30.Occurrences = 2
body.Tip = linearpattern30

sketch4 = body.newObject("Sketcher::SketchObject", "Sketch003")
sketch4.AttachmentSupport = (doc.getObject("XZ_Plane"), [""])
sketch4.MapMode = "FlatFace"
sketch4.AttachmentOffset = App.Placement(V(0, 0, -9.826), App.Rotation())
sketch4.addGeometry([
    Part.Circle(V(246.6, -462.5, 0), V(0, 0, 1), 1.8),
    Part.Circle(V(267.5, -462.5, 0), V(0, 0, 1), 1.8),
    Part.Circle(V(267.5, -401.5, 0), V(0, 0, 1), 1.8),
    Part.Circle(V(292.5, -399.5, 0), V(0, 0, 1), 1.7),
    Part.Circle(V(246.6, -401.5, 0), V(0, 0, 1), 1.8),
    Part.Circle(V(292.5, -464.5, 0), V(0, 0, 1), 1.7),
    Part.Circle(V(315.5, -464.5, 0), V(0, 0, 1), 1.7),
    Part.Circle(V(315.5, -399.5, 0), V(0, 0, 1), 1.7),
    Part.Circle(V(326.5, -435.8, 0), V(0, 0, 1), 1.7),
    Part.Circle(V(326.5, -468.8, 0), V(0, 0, 1), 1.7),
], False)
sketch4.addConstraint([
    Sketcher.Constraint("Equal", 0, 1),
    Sketcher.Constraint("Equal", 1, 2),
    Sketcher.Constraint("Equal", 2, 4),
    Sketcher.Constraint("Equal", 3, 5),
    Sketcher.Constraint("Equal", 5, 6),
    Sketcher.Constraint("Equal", 6, 7),
    Sketcher.Constraint("Equal", 7, 8),
    Sketcher.Constraint("Equal", 8, 9),
    Sketcher.Constraint("Horizontal", 0, 3, 1, 3),
    Sketcher.Constraint("Horizontal", 2, 3, 4, 3),
    Sketcher.Constraint("Horizontal", 5, 3, 6, 3),
    Sketcher.Constraint("Horizontal", 3, 3, 7, 3),
    Sketcher.Constraint("Vertical", 1, 3, 2, 3),
    Sketcher.Constraint("Vertical", 0, 3, 4, 3),
    Sketcher.Constraint("Vertical", 3, 3, 5, 3),
    Sketcher.Constraint("Vertical", 6, 3, 7, 3),
    Sketcher.Constraint("Vertical", 8, 3, 9, 3),
    Sketcher.Constraint("Diameter", 0, 3.6),
    Sketcher.Constraint("Diameter", 3, 3.4),
    Sketcher.Constraint("DistanceY", 1, 3, 2, 3, 61.0),
    Sketcher.Constraint("DistanceX", 2, 3, 3, 3, 25.0),
    Sketcher.Constraint("DistanceY", 2, 3, 3, 3, 2.0),
    Sketcher.Constraint("DistanceY", 5, 3, 1, 3, 2.0),
    Sketcher.Constraint("DistanceX", 5, 3, 6, 3, 23.0),
    Sketcher.Constraint("DistanceX", 6, 3, 8, 3, 11.0),
    Sketcher.Constraint("DistanceY", 9, 3, 8, 3, 33.0),
    Sketcher.Constraint("DistanceX", -1, 1, 0, 3, 246.6),
    Sketcher.Constraint("DistanceY", 0, 3, -1, 1, 462.5),
    Sketcher.Constraint("DistanceX", -1, 1, 1, 3, 267.5),
    Sketcher.Constraint("DistanceY", 8, 3, -1, 1, 435.837822),
])
pocket1 = body.newObject("PartDesign::Pocket", "Pocket")
pocket1.Profile = sketch4
pocket1.Length = 9.826
pocket1.Reversed = True

sketch5 = body.newObject("Sketcher::SketchObject", "Sketch004")
sketch5.AttachmentSupport = (doc.getObject("XZ_Plane"), [""])
sketch5.MapMode = "FlatFace"
sketch5.AttachmentOffset = App.Placement(V(0, 0, -4.826), App.Rotation())
sketch5.addGeometry([
    Part.Circle(V(67.5, -464.5, 0), V(0, 0, 1), 1.7),
    Part.Circle(V(92.5, -462.5, 0), V(0, 0, 1), 1.8),
    Part.Circle(V(113.4, -462.5, 0), V(0, 0, 1), 1.8),
    Part.Circle(V(92.5, -401.5, 0), V(0, 0, 1), 1.8),
    Part.Circle(V(113.4, -401.5, 0), V(0, 0, 1), 1.8),
    Part.Circle(V(67.5, -399.5, 0), V(0, 0, 1), 1.7),
    Part.Circle(V(44.5, -399.5, 0), V(0, 0, 1), 1.7),
    Part.Circle(V(33.5, -468.8, 0), V(0, 0, 1), 1.7),
    Part.Circle(V(33.5, -435.8, 0), V(0, 0, 1), 1.7),
    Part.Circle(V(44.5, -464.5, 0), V(0, 0, 1), 1.7),
], False)
sketch5.addConstraint([
    Sketcher.Constraint("Equal", 1, 2),
    Sketcher.Constraint("Equal", 2, 3),
    Sketcher.Constraint("Equal", 3, 4),
    Sketcher.Constraint("Equal", 0, 5),
    Sketcher.Constraint("Equal", 5, 6),
    Sketcher.Constraint("Equal", 6, 7),
    Sketcher.Constraint("Equal", 7, 8),
    Sketcher.Constraint("Equal", 8, 9),
    Sketcher.Constraint("Horizontal", 1, 3, 2, 3),
    Sketcher.Constraint("Horizontal", 3, 3, 4, 3),
    Sketcher.Constraint("Horizontal", 5, 3, 6, 3),
    Sketcher.Constraint("Horizontal", 0, 3, 9, 3),
    Sketcher.Constraint("Vertical", 1, 3, 3, 3),
    Sketcher.Constraint("Vertical", 2, 3, 4, 3),
    Sketcher.Constraint("Vertical", 0, 3, 5, 3),
    Sketcher.Constraint("Vertical", 7, 3, 8, 3),
    Sketcher.Constraint("Vertical", 6, 3, 9, 3),
    Sketcher.Constraint("Diameter", 0, 3.4),
    Sketcher.Constraint("Diameter", 1, 3.6),
    Sketcher.Constraint("DistanceX", 0, 3, 1, 3, 25.0),
    Sketcher.Constraint("DistanceY", 0, 3, 1, 3, 2.0),
    Sketcher.Constraint("DistanceY", 1, 3, 3, 3, 61.0),
    Sketcher.Constraint("DistanceY", 3, 3, 5, 3, 2.0),
    Sketcher.Constraint("DistanceX", 6, 3, 5, 3, 23.0),
    Sketcher.Constraint("DistanceX", 7, 3, 0, 3, 34.0),
    Sketcher.Constraint("DistanceY", 7, 3, 8, 3, 33.0),
    Sketcher.Constraint("DistanceX", -1, 1, 0, 3, 67.5),
    Sketcher.Constraint("DistanceY", 0, 3, -1, 1, 464.5),
    Sketcher.Constraint("DistanceX", -1, 1, 2, 3, 113.4),
    Sketcher.Constraint("DistanceY", 7, 3, -1, 1, 468.837822),
])
pocket2 = body.newObject("PartDesign::Pocket", "Pocket001")
pocket2.Profile = sketch5
pocket2.Length = 4.826
pocket2.Reversed = True

doc.recompute()
